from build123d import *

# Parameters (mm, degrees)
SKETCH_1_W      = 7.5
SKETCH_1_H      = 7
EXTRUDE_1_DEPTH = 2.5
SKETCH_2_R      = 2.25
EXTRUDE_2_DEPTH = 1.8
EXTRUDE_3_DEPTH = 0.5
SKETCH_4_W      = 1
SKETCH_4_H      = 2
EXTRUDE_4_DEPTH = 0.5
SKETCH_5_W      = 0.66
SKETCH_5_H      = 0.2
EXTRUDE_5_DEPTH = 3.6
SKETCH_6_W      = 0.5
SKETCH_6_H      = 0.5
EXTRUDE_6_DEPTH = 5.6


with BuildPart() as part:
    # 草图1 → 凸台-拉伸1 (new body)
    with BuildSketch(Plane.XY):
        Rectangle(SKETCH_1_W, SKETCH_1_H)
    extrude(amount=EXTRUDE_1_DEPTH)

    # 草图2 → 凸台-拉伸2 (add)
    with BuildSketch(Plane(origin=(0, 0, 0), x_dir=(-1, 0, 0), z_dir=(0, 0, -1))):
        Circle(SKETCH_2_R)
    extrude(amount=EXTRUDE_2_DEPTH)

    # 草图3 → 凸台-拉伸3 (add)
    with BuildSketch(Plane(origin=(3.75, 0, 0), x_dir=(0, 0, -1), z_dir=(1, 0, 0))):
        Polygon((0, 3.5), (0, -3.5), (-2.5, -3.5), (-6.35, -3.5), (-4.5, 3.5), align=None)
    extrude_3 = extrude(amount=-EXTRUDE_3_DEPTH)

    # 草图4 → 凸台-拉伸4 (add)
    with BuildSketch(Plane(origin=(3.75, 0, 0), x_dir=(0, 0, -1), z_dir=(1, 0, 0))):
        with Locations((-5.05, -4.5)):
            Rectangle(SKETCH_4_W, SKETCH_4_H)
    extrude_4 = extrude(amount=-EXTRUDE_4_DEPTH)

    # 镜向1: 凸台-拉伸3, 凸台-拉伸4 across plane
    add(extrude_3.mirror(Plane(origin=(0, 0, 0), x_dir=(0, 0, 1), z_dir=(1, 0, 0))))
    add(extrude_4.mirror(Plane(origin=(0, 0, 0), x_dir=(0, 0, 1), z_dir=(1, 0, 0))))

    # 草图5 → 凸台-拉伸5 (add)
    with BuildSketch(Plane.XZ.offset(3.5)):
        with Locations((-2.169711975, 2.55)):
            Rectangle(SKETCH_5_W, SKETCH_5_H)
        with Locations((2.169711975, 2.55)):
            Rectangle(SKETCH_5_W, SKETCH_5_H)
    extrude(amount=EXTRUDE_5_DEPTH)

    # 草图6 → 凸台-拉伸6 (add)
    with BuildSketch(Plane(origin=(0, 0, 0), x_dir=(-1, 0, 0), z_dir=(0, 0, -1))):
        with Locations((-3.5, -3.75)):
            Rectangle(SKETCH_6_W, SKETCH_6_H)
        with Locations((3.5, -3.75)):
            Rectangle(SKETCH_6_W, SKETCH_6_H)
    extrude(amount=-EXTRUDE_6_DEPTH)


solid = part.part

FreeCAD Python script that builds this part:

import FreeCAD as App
import Part
import Sketcher

doc = App.newDocument("Part")
params = doc.addObject("Spreadsheet::Sheet", "Params")
for row, (alias, value) in enumerate([
    ("sketch1_height", "7 mm"),
    ("sketch1_width", "7.5 mm"),
    ("pad1_length", "2.5 mm"),
    ("sketch2_diameter", "4.5 mm"),
    ("pad2_length", "1.8 mm"),
    ("sketch3_width", "7 mm"),
    ("sketch3_height", "4.5 mm"),
    ("sketch3_height2", "6.35 mm"),
    ("pad3_length", "0.5 mm"),
    ("sketch4_width", "2 mm"),
    ("sketch4_height", "1 mm"),
    ("pad4_length", "0.5 mm"),
    ("sketch5_height", "0.2 mm"),
    ("sketch5_width", "0.66 mm"),
    ("pad5_length", "3.6 mm"),
    ("sketch6_width", "0.5 mm"),
    ("pad6_length", "5.6 mm"),
], start=1):
    params.set(f"A{row}", alias)
    params.set(f"B{row}", "=" + value)
    params.setAlias(f"B{row}", alias)

body = doc.addObject("PartDesign::Body", "Body")

sketch1 = body.newObject("Sketcher::SketchObject", "Sketch")
sketch1.AttachmentSupport = (doc.getObject("XY_Plane"), [""])
sketch1.MapMode = "FlatFace"
sketch1.addGeometry(Part.LineSegment(App.Vector(-3.75, 3.5, 0), App.Vector(-3.75, -3.5, 0)), False)
sketch1.addGeometry(Part.LineSegment(App.Vector(-3.75, -3.5, 0), App.Vector(3.75, -3.5, 0)), False)
sketch1.addGeometry(Part.LineSegment(App.Vector(3.75, -3.5, 0), App.Vector(3.75, 3.5, 0)), False)
sketch1.addGeometry(Part.LineSegment(App.Vector(3.75, 3.5, 0), App.Vector(-3.75, 3.5, 0)), False)
sketch1.addConstraint(Sketcher.Constraint("Coincident", 0, 2, 1, 1))
sketch1.addConstraint(Sketcher.Constraint("Coincident", 1, 2, 2, 1))
sketch1.addConstraint(Sketcher.Constraint("Coincident", 2, 2, 3, 1))
sketch1.addConstraint(Sketcher.Constraint("Coincident", 3, 2, 0, 1))
sketch1.addConstraint(Sketcher.Constraint("Vertical", 0))
sketch1.addConstraint(Sketcher.Constraint("Horizontal", 1))
sketch1.addConstraint(Sketcher.Constraint("Vertical", 2))
sketch1.addConstraint(Sketcher.Constraint("Horizontal", 3))
sketch1.addConstraint(Sketcher.Constraint("Symmetric", 0, 2, 2, 2, -1, 1))
sketch1.addConstraint(Sketcher.Constraint("DistanceY", 0, 2, 0, 1, 7.0))
sketch1.addConstraint(Sketcher.Constraint("DistanceX", 1, 1, 1, 2, 7.5))
sketch1.setExpression("Constraints[9]", "Params.sketch1_height")
sketch1.setExpression("Constraints[10]", "Params.sketch1_width")
pad1 = body.newObject("PartDesign::Pad", "Pad")
pad1.Profile = sketch1
pad1.setExpression("Length", "Params.pad1_length")

sketch2 = body.newObject("Sketcher::SketchObject", "Sketch001")
sketch2.AttachmentSupport = (doc.getObject("XY_Plane"), [""])
sketch2.MapMode = "FlatFace"
sketch2.addGeometry(Part.Circle(App.Vector(0, 0, 0), App.Vector(0, 0, 1), 2.25), False)
sketch2.addConstraint(Sketcher.Constraint("Coincident", 0, 3, -1, 1))
sketch2.addConstraint(Sketcher.Constraint("Diameter", 0, 4.5))
sketch2.setExpression("Constraints[1]", "Params.sketch2_diameter")
pad2 = body.newObject("PartDesign::Pad", "Pad001")
pad2.Profile = sketch2
pad2.setExpression("Length", "Params.pad2_length")
pad2.Reversed = True

sketch3 = body.newObject("Sketcher::SketchObject", "Sketch002")
sketch3.AttachmentSupport = (doc.getObject("YZ_Plane"), [""])
sketch3.MapMode = "FlatFace"
sketch3.AttachmentOffset = App.Placement(App.Vector(0, 0, 3.75), App.Rotation())
sketch3.addGeometry(Part.LineSegment(App.Vector(-3.5, 0, 0), App.Vector(3.5, 0, 0)), False)
sketch3.addGeometry(Part.LineSegment(App.Vector(3.5, 0, 0), App.Vector(3.5, 4.5, 0)), False)
sketch3.addGeometry(Part.LineSegment(App.Vector(3.5, 4.5, 0), App.Vector(-3.5, 6.35, 0)), False)
sketch3.addGeometry(Part.LineSegment(App.Vector(-3.5, 6.35, 0), App.Vector(-3.5, 0, 0)), False)
sketch3.addConstraint(Sketcher.Constraint("Coincident", 0, 2, 1, 1))
sketch3.addConstraint(Sketcher.Constraint("Coincident", 1, 2, 2, 1))
sketch3.addConstraint(Sketcher.Constraint("Coincident", 2, 2, 3, 1))
sketch3.addConstraint(Sketcher.Constraint("Coincident", 3, 2, 0, 1))
sketch3.addConstraint(Sketcher.Constraint("Horizontal", 0))
sketch3.addConstraint(Sketcher.Constraint("Vertical", 1))
sketch3.addConstraint(Sketcher.Constraint("Vertical", 3))
sketch3.addConstraint(Sketcher.Constraint("Symmetric", 0, 2, 3, 2, -1, 1))
sketch3.addConstraint(Sketcher.Constraint("DistanceX", 0, 1, 0, 2, 7.0))
sketch3.addConstraint(Sketcher.Constraint("DistanceY", 1, 1, 1, 2, 4.5))
sketch3.addConstraint(Sketcher.Constraint("DistanceY", 3, 2, 3, 1, 6.35))
sketch3.setExpression("Constraints[8]", "Params.sketch3_width")
sketch3.setExpression("Constraints[9]", "Params.sketch3_height")
sketch3.setExpression("Constraints[10]", "Params.sketch3_height2")
pad3 = body.newObject("PartDesign::Pad", "Pad002")
pad3.Profile = sketch3
pad3.setExpression("Length", "Params.pad3_length")
pad3.Reversed = True

sketch4 = body.newObject("Sketcher::SketchObject", "Sketch003")
sketch4.AttachmentSupport = (doc.getObject("YZ_Plane"), [""])
sketch4.MapMode = "FlatFace"
sketch4.AttachmentOffset = App.Placement(App.Vector(0, 0, 3.75), App.Rotation())
sketch4.addGeometry(Part.LineSegment(App.Vector(-3.5, 5.55, 0), App.Vector(-5.5, 5.55, 0)), False)
sketch4.addGeometry(Part.LineSegment(App.Vector(-5.5, 5.55, 0), App.Vector(-5.5, 4.55, 0)), False)
sketch4.addGeometry(Part.LineSegment(App.Vector(-5.5, 4.55, 0), App.Vector(-3.5, 4.55, 0)), False)
sketch4.addGeometry(Part.LineSegment(App.Vector(-3.5, 4.55, 0), App.Vector(-3.5, 5.55, 0)), False)
sketch4.addConstraint(Sketcher.Constraint("Coincident", 0, 2, 1, 1))
sketch4.addConstraint(Sketcher.Constraint("Coincident", 1, 2, 2, 1))
sketch4.addConstraint(Sketcher.Constraint("Coincident", 2, 2, 3, 1))
sketch4.addConstraint(Sketcher.Constraint("Coincident", 3, 2, 0, 1))
sketch4.addConstraint(Sketcher.Constraint("Horizontal", 0))
sketch4.addConstraint(Sketcher.Constraint("Vertical", 1))
sketch4.addConstraint(Sketcher.Constraint("Horizontal", 2))
sketch4.addConstraint(Sketcher.Constraint("Vertical", 3))
sketch4.addConstraint(Sketcher.Constraint("DistanceX", 0, 2, 0, 1, 2.0))
sketch4.addConstraint(Sketcher.Constraint("DistanceY", 1, 2, 1, 1, 1.0))
sketch4.addConstraint(Sketcher.Constraint("DistanceX", 0, 2, -1, 1, 5.5))
sketch4.addConstraint(Sketcher.Constraint("DistanceY", -1, 1, 0, 2, 5.55))
sketch4.setExpression("Constraints[8]", "Params.sketch4_width")
sketch4.setExpression("Constraints[9]", "Params.sketch4_height")
pad4 = body.newObject("PartDesign::Pad", "Pad003")
pad4.Profile = sketch4
pad4.setExpression("Length", "Params.pad4_length")
pad4.Reversed = True
doc.recompute()

mirrored = body.newObject("PartDesign::Mirrored", "Mirrored")
mirrored.Originals = [pad3, pad4]
mirrored.MirrorPlane = (doc.getObject("YZ_Plane"), [""])
body.Tip = mirrored

sketch5 = body.newObject("Sketcher::SketchObject", "Sketch004")
sketch5.AttachmentSupport = (doc.getObject("XZ_Plane"), [""])
sketch5.MapMode = "FlatFace"
sketch5.AttachmentOffset = App.Placement(App.Vector(0, 0, 3.5), App.Rotation())
sketch5.addGeometry(Part.LineSegment(App.Vector(-2.499712, 2.65, 0), App.Vector(-2.499712, 2.45, 0)), False)
sketch5.addGeometry(Part.LineSegment(App.Vector(-2.499712, 2.45, 0), App.Vector(-1.839712, 2.45, 0)), False)
sketch5.addGeometry(Part.LineSegment(App.Vector(-1.839712, 2.45, 0), App.Vector(-1.839712, 2.65, 0)), False)
sketch5.addGeometry(Part.LineSegment(App.Vector(-1.839712, 2.65, 0), App.Vector(-2.499712, 2.65, 0)), False)
sketch5.addGeometry(Part.LineSegment(App.Vector(1.839712, 2.65, 0), App.Vector(1.839712, 2.45, 0)), False)
sketch5.addGeometry(Part.LineSegment(App.Vector(1.839712, 2.45, 0), App.Vector(2.499712, 2.45, 0)), False)
sketch5.addGeometry(Part.LineSegment(App.Vector(2.499712, 2.45, 0), App.Vector(2.499712, 2.65, 0)), False)
sketch5.addGeometry(Part.LineSegment(App.Vector(2.499712, 2.65, 0), App.Vector(1.839712, 2.65, 0)), False)
sketch5.addConstraint(Sketcher.Constraint("Coincident", 0, 2, 1, 1))
sketch5.addConstraint(Sketcher.Constraint("Coincident", 1, 2, 2, 1))
sketch5.addConstraint(Sketcher.Constraint("Coincident", 2, 2, 3, 1))
sketch5.addConstraint(Sketcher.Constraint("Coincident", 3, 2, 0, 1))
sketch5.addConstraint(Sketcher.Constraint("Coincident", 4, 2, 5, 1))
sketch5.addConstraint(Sketcher.Constraint("Coincident", 5, 2, 6, 1))
sketch5.addConstraint(Sketcher.Constraint("Coincident", 6, 2, 7, 1))
sketch5.addConstraint(Sketcher.Constraint("Coincident", 7, 2, 4, 1))
sketch5.addConstraint(Sketcher.Constraint("Vertical", 0))
sketch5.addConstraint(Sketcher.Constraint("Horizontal", 1))
sketch5.addConstraint(Sketcher.Constraint("Vertical", 2))
sketch5.addConstraint(Sketcher.Constraint("Horizontal", 3))
sketch5.addConstraint(Sketcher.Constraint("Vertical", 4))
sketch5.addConstraint(Sketcher.Constraint("Horizontal", 5))
sketch5.addConstraint(Sketcher.Constraint("Vertical", 6))
sketch5.addConstraint(Sketcher.Constraint("Horizontal", 7))
sketch5.addConstraint(Sketcher.Constraint("Symmetric", 1, 2, 4, 2, -2))
sketch5.addConstraint(Sketcher.Constraint("Symmetric", 3, 2, 6, 2, -2))
sketch5.addConstraint(Sketcher.Constraint("DistanceY", 0, 2, 0, 1, 0.2))
sketch5.addConstraint(Sketcher.Constraint("DistanceX", 1, 1, 1, 2, 0.66))
sketch5.addConstraint(Sketcher.Constraint("DistanceY", -1, 1, 0, 2, 2.45))
sketch5.addConstraint(Sketcher.Constraint("DistanceX", 0, 2, -1, 1, 2.499712))
sketch5.setExpression("Constraints[18]", "Params.sketch5_height")
sketch5.setExpression("Constraints[19]", "Params.sketch5_width")
pad5 = body.newObject("PartDesign::Pad", "Pad004")
pad5.Profile = sketch5
pad5.setExpression("Length", "Params.pad5_length")

sketch6 = body.newObject("Sketcher::SketchObject", "Sketch005")
sketch6.AttachmentSupport = (doc.getObject("XY_Plane"), [""])
sketch6.MapMode = "FlatFace"
sketch6.addGeometry(Part.LineSegment(App.Vector(3.75, -3.5, 0), App.Vector(3.75, -4, 0)), False)
sketch6.addGeometry(Part.LineSegment(App.Vector(3.75, -4, 0), App.Vector(3.25, -4, 0)), False)
sketch6.addGeometry(Part.LineSegment(App.Vector(3.25, -4, 0), App.Vector(3.25, -3.5, 0)), False)
sketch6.addGeometry(Part.LineSegment(App.Vector(3.25, -3.5, 0), App.Vector(3.75, -3.5, 0)), False)
sketch6.addGeometry(Part.LineSegment(App.Vector(-3.25, -3.5, 0), App.Vector(-3.25, -4, 0)), False)
sketch6.addGeometry(Part.LineSegment(App.Vector(-3.25, -4, 0), App.Vector(-3.75, -4, 0)), False)
sketch6.addGeometry(Part.LineSegment(App.Vector(-3.75, -4, 0), App.Vector(-3.75, -3.5, 0)), False)
sketch6.addGeometry(Part.LineSegment(App.Vector(-3.75, -3.5, 0), App.Vector(-3.25, -3.5, 0)), False)
sketch6.addConstraint(Sketcher.Constraint("Coincident", 0, 2, 1, 1))
sketch6.addConstraint(Sketcher.Constraint("Coincident", 1, 2, 2, 1))
sketch6.addConstraint(Sketcher.Constraint("Coincident", 2, 2, 3, 1))
sketch6.addConstraint(Sketcher.Constraint("Coincident", 3, 2, 0, 1))
sketch6.addConstraint(Sketcher.Constraint("Coincident", 4, 2, 5, 1))
sketch6.addConstraint(Sketcher.Constraint("Coincident", 5, 2, 6, 1))
sketch6.addConstraint(Sketcher.Constraint("Coincident", 6, 2, 7, 1))
sketch6.addConstraint(Sketcher.Constraint("Coincident", 7, 2, 4, 1))
sketch6.addConstraint(Sketcher.Constraint("Vertical", 0))
sketch6.addConstraint(Sketcher.Constraint("Horizontal", 1))
sketch6.addConstraint(Sketcher.Constraint("Vertical", 2))
sketch6.addConstraint(Sketcher.Constraint("Horizontal", 3))
sketch6.addConstraint(Sketcher.Constraint("Vertical", 4))
sketch6.addConstraint(Sketcher.Constraint("Horizontal", 5))
sketch6.addConstraint(Sketcher.Constraint("Vertical", 6))
sketch6.addConstraint(Sketcher.Constraint("Horizontal", 7))
sketch6.addConstraint(Sketcher.Constraint("Symmetric", 1, 2, 4, 2, -2))
sketch6.addConstraint(Sketcher.Constraint("Symmetric", 3, 2, 6, 2, -2))
sketch6.addConstraint(Sketcher.Constraint("Equal", 7, 0))
sketch6.addConstraint(Sketcher.Constraint("DistanceX", 1, 2, 1, 1, 0.5))
sketch6.addConstraint(Sketcher.Constraint("DistanceY", 0, 2, -1, 1, 4.0))
sketch6.addConstraint(Sketcher.Constraint("DistanceX", 4, 2, 0, 2, 7.0))
sketch6.setExpression("Constraints[19]", "Params.sketch6_width")
pad6 = body.newObject("PartDesign::Pad", "Pad005")
pad6.Profile = sketch6
pad6.setExpression("Length", "Params.pad6_length")

doc.recompute()
